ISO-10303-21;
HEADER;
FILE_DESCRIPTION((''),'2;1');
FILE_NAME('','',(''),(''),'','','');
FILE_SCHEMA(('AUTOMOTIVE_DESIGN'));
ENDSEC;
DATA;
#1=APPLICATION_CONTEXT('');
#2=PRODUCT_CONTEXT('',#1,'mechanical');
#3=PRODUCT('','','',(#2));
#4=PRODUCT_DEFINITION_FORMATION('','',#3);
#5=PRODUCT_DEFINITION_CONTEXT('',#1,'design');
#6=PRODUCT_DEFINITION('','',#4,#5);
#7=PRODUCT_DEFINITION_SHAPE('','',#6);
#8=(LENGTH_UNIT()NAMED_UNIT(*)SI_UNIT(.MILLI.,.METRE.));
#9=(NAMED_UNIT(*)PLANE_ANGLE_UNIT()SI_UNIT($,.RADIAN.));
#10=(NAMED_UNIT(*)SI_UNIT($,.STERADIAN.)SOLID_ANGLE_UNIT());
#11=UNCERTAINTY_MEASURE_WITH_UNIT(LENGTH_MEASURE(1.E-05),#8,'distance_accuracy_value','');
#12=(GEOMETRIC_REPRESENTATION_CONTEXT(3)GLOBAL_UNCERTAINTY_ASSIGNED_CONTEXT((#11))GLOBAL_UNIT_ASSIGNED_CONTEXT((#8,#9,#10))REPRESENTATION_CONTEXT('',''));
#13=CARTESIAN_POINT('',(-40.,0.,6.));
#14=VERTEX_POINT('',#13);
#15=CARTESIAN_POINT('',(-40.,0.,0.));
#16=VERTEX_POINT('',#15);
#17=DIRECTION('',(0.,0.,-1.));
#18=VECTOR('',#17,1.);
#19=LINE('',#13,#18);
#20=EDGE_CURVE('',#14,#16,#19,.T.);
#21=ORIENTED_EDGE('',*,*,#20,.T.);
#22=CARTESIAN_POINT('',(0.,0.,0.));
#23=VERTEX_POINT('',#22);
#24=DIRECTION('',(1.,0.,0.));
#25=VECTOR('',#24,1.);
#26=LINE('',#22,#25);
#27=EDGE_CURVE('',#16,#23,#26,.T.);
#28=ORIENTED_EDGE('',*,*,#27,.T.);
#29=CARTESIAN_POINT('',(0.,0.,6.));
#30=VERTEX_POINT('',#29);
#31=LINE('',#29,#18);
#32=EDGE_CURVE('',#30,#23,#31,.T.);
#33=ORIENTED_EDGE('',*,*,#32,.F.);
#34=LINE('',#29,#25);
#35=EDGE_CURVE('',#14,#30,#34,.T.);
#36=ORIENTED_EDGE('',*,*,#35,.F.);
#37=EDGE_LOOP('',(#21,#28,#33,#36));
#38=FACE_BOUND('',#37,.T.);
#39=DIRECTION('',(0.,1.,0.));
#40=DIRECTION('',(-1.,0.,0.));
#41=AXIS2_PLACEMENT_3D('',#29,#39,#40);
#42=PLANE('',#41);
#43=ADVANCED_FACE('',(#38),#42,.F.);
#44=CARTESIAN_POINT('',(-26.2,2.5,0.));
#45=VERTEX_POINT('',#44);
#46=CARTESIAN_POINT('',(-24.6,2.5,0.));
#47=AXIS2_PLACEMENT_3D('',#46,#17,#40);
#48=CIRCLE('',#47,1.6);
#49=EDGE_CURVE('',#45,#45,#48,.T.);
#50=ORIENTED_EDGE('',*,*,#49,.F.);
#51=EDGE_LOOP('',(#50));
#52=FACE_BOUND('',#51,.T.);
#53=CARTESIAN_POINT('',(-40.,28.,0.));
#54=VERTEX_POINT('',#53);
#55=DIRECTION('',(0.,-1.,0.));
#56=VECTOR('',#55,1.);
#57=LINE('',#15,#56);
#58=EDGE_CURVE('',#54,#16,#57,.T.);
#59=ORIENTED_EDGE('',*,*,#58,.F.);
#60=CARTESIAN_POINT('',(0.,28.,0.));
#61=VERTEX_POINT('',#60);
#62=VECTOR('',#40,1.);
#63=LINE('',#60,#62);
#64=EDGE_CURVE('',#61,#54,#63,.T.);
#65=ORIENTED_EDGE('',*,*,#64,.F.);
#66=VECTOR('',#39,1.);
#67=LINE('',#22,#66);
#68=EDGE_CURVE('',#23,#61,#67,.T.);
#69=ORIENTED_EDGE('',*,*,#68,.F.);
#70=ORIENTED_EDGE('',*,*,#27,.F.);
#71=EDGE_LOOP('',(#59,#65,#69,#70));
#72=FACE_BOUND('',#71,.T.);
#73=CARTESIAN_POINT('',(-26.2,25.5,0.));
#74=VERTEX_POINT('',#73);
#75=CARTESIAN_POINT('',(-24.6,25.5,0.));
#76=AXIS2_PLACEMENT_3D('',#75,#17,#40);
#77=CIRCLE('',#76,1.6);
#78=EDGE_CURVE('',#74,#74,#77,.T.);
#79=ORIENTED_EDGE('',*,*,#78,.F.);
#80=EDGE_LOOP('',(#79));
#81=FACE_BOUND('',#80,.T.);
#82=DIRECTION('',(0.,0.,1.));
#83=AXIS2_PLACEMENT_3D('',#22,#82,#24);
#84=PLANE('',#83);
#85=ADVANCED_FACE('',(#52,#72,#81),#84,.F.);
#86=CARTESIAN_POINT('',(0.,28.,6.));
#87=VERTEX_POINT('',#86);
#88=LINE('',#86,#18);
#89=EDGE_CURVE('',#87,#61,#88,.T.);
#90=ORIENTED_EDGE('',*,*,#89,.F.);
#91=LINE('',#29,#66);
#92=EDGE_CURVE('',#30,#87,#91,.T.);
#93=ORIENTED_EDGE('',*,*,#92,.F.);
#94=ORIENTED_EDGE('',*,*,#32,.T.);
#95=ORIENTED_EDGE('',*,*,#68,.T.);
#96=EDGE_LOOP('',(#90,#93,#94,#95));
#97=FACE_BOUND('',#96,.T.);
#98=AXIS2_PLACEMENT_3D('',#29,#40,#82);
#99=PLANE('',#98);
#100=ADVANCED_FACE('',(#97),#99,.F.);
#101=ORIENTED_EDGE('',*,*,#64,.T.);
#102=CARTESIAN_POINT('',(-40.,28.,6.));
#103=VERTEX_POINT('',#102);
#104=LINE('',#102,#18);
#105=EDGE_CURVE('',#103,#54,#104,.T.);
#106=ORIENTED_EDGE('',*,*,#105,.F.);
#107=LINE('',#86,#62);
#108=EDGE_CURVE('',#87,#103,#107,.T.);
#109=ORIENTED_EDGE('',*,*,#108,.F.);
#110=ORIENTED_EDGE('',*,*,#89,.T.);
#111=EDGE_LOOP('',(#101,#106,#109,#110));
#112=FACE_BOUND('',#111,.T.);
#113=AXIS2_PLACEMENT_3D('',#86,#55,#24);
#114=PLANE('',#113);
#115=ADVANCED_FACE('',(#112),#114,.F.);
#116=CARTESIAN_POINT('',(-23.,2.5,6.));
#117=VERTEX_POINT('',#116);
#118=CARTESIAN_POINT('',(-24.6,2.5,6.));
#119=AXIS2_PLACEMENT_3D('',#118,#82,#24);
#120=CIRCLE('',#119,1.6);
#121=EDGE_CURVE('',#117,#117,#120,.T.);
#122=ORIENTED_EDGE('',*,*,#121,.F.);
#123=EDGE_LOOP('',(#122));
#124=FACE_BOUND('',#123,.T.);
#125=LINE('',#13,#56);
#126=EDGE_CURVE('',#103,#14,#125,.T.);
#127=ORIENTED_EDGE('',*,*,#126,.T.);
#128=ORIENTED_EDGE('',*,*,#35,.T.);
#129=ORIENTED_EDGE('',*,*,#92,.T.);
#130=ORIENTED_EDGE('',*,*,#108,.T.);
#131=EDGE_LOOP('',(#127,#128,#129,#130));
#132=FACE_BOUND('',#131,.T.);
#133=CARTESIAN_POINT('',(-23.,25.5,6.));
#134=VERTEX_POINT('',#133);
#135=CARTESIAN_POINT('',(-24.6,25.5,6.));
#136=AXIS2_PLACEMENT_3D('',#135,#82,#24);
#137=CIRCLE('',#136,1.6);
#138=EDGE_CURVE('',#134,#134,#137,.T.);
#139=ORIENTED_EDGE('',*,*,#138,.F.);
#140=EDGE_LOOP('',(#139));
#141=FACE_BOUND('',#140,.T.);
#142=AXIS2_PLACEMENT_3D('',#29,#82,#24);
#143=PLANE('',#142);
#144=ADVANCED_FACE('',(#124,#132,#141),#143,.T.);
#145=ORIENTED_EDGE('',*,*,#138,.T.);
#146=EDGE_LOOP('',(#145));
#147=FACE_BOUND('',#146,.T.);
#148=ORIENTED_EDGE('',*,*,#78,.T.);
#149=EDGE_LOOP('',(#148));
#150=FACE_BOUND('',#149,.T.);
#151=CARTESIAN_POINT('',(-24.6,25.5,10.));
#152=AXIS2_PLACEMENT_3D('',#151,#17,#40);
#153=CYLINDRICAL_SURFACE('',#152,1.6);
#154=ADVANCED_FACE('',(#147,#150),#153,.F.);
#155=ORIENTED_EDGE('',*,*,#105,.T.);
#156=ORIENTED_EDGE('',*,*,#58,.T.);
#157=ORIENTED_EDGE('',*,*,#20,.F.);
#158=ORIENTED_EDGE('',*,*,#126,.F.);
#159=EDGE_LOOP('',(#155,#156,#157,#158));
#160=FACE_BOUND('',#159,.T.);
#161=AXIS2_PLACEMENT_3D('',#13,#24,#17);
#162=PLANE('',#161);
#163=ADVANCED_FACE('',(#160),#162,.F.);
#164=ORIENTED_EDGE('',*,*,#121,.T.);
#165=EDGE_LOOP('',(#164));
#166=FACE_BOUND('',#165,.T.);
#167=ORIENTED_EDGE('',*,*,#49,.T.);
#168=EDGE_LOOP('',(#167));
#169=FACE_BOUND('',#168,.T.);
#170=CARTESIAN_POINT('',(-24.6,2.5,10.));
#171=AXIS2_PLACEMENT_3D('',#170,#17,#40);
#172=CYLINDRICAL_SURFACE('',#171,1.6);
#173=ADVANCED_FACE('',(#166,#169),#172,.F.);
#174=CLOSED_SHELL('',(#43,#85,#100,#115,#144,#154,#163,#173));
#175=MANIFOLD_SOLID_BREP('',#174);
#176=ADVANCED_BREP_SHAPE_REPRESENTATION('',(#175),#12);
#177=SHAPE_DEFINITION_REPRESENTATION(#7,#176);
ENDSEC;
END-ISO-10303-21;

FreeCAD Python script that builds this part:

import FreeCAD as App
import Part
import Sketcher

doc = App.newDocument("Part")
body = doc.addObject("PartDesign::Body", "Body")

sketch1 = body.newObject("Sketcher::SketchObject", "Sketch")
sketch1.AttachmentSupport = (doc.getObject("XY_Plane"), [""])
sketch1.MapMode = "FlatFace"
sketch1.addGeometry(Part.LineSegment(App.Vector(-40, 28, 0), App.Vector(-40, 0, 0)), False)
sketch1.addGeometry(Part.LineSegment(App.Vector(-40, 0, 0), App.Vector(0, 0, 0)), False)
sketch1.addGeometry(Part.LineSegment(App.Vector(0, 0, 0), App.Vector(0, 28, 0)), False)
sketch1.addGeometry(Part.LineSegment(App.Vector(0, 28, 0), App.Vector(-40, 28, 0)), False)
sketch1.addConstraint(Sketcher.Constraint("Coincident", 0, 2, 1, 1))
sketch1.addConstraint(Sketcher.Constraint("Coincident", 1, 2, 2, 1))
sketch1.addConstraint(Sketcher.Constraint("Coincident", 2, 2, 3, 1))
sketch1.addConstraint(Sketcher.Constraint("Coincident", 3, 2, 0, 1))
sketch1.addConstraint(Sketcher.Constraint("Vertical", 0))
sketch1.addConstraint(Sketcher.Constraint("Horizontal", 1))
sketch1.addConstraint(Sketcher.Constraint("Vertical", 2))
sketch1.addConstraint(Sketcher.Constraint("Horizontal", 3))
sketch1.addConstraint(Sketcher.Constraint("Coincident", 1, 2, -1, 1))
sketch1.addConstraint(Sketcher.Constraint("DistanceX", 1, 1, 1, 2, 40.0))
sketch1.addConstraint(Sketcher.Constraint("DistanceY", 0, 2, 0, 1, 28.0))
pad1 = body.newObject("PartDesign::Pad", "Pad")
pad1.Profile = sketch1
pad1.Length = 6

sketch2 = body.newObject("Sketcher::SketchObject", "Sketch001")
sketch2.AttachmentSupport = (doc.getObject("XY_Plane"), [""])
sketch2.MapMode = "FlatFace"
sketch2.addGeometry(Part.Circle(App.Vector(-24.6, 25.5, 0), App.Vector(0, 0, 1), 1.6), False)
sketch2.addGeometry(Part.Circle(App.Vector(-24.6, 2.5, 0), App.Vector(0, 0, 1), 1.6), False)
sketch2.addConstraint(Sketcher.Constraint("Equal", 0, 1))
sketch2.addConstraint(Sketcher.Constraint("Vertical", 0, 3, 1, 3))
sketch2.addConstraint(Sketcher.Constraint("Diameter", 0, 3.2))
sketch2.addConstraint(Sketcher.Constraint("DistanceY", 1, 3, 0, 3, 23.0))
sketch2.addConstraint(Sketcher.Constraint("DistanceX", 0, 3, -1, 1, 24.6))
sketch2.addConstraint(Sketcher.Constraint("DistanceY", -1, 1, 0, 3, 25.5))
pocket1 = body.newObject("PartDesign::Pocket", "Pocket")
pocket1.Profile = sketch2
pocket1.Length = 10
pocket1.Reversed = True

doc.recompute()
